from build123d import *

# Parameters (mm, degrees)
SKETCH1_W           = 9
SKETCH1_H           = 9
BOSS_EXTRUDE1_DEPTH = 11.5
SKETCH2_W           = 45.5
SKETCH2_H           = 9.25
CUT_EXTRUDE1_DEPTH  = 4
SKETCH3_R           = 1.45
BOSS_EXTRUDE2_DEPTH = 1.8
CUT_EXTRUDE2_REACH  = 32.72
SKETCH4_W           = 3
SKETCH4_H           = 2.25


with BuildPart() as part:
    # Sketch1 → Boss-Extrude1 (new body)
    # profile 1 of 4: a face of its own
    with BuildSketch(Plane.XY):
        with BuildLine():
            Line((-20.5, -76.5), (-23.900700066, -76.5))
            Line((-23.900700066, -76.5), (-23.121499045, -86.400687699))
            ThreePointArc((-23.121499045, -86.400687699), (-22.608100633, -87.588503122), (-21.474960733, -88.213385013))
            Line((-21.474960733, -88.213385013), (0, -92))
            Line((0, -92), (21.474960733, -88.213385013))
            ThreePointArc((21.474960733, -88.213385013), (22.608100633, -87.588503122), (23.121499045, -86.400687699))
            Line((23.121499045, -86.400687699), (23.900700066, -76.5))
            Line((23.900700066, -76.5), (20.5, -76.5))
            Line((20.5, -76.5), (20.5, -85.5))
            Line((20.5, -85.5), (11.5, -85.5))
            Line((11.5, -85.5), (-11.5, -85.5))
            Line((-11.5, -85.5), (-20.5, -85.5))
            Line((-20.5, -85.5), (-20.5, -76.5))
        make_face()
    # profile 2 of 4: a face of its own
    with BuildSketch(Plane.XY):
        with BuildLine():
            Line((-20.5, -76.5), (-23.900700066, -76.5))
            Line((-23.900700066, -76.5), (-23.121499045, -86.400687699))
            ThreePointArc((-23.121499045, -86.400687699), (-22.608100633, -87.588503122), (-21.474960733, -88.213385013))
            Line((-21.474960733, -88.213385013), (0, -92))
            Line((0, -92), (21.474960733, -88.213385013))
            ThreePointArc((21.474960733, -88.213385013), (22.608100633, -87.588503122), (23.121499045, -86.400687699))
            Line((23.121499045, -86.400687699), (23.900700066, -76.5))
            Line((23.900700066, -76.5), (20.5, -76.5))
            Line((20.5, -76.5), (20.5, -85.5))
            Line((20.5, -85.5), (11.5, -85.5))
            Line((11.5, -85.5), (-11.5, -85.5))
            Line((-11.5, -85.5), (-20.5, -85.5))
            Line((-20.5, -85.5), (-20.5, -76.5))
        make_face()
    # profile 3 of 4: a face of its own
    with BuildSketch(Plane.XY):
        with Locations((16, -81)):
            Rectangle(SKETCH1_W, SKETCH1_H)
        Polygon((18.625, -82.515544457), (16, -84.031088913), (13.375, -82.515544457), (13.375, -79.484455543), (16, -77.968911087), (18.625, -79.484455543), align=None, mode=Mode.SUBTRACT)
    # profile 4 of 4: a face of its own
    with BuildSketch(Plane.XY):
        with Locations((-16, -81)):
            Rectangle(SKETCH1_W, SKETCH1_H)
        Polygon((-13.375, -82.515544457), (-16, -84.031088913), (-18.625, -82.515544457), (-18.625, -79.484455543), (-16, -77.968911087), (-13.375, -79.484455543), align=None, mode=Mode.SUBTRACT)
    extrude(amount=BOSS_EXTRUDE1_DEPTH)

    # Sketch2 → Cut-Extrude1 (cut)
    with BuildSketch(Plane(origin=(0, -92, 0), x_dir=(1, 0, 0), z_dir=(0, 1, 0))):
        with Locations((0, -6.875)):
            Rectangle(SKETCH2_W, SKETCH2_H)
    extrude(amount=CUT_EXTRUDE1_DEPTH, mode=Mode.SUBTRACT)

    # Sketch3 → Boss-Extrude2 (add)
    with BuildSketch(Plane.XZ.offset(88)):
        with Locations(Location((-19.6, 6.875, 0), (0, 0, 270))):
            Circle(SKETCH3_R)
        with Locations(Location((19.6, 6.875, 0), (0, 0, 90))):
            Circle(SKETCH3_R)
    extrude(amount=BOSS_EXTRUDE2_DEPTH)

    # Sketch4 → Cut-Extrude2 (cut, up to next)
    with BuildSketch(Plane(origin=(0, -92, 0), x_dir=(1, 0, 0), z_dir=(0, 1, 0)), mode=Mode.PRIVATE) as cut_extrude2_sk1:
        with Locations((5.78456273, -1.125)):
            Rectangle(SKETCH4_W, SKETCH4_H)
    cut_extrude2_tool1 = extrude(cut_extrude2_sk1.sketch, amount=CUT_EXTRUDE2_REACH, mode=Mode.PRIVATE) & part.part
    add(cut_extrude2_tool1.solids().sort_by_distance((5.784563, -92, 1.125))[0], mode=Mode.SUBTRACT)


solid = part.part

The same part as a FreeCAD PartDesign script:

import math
import FreeCAD as App
import Part
import Sketcher
from FreeCAD import Vector
Q = App.Units.Quantity


def add_polygon(sketch, points):
    """Adds a closed chain of lines whose ends are joined by coincident constraints."""
    first, n = sketch.GeometryCount, len(points)
    for a, b in zip(points, points[1:] + points[:1]):
        sketch.addGeometry(Part.LineSegment(App.Vector(*a, 0), App.Vector(*b, 0)), False)
    for i in range(n):
        sketch.addConstraint(Sketcher.Constraint("Coincident", first + i, 2, first + (i + 1) % n, 1))

doc = App.newDocument("Part")
body = doc.addObject("PartDesign::Body", "Body")

sketch1 = body.newObject("Sketcher::SketchObject", "Sketch")
sketch1.AttachmentSupport = (doc.getObject("XY_Plane"), [""])
sketch1.MapMode = "FlatFace"
sketch1.addGeometry(Part.LineSegment(Vector(-23.9, -76.5, 0), Vector(-23.1, -86.4, 0)), False)
sketch1.addGeometry(Part.ArcOfCircle(Part.Circle(Vector(-21.1, -86.2, 0), Vector(0, 0, 1), 2), math.radians(-176), math.radians(-100)), False)
sketch1.addGeometry(Part.LineSegment(Vector(-21.5, -88.2, 0), Vector(0, -92, 0)), False)
sketch1.addGeometry(Part.LineSegment(Vector(0, -92, 0), Vector(21.5, -88.2, 0)), False)
sketch1.addGeometry(Part.ArcOfCircle(Part.Circle(Vector(21.1, -86.2, 0), Vector(0, 0, 1), 2), math.radians(-80), math.radians(-4)), False)
sketch1.addGeometry(Part.LineSegment(Vector(23.1, -86.4, 0), Vector(23.9, -76.5, 0)), False)
sketch1.addGeometry(Part.LineSegment(Vector(23.9, -76.5, 0), Vector(11.5, -76.5, 0)), False)
sketch1.addGeometry(Part.LineSegment(Vector(11.5, -76.5, 0), Vector(11.5, -85.5, 0)), False)
sketch1.addGeometry(Part.LineSegment(Vector(11.5, -85.5, 0), Vector(-11.5, -85.5, 0)), False)
sketch1.addGeometry(Part.LineSegment(Vector(-11.5, -85.5, 0), Vector(-11.5, -76.5, 0)), False)
sketch1.addGeometry(Part.LineSegment(Vector(-11.5, -76.5, 0), Vector(-23.9, -76.5, 0)), False)
add_polygon(sketch1, [(16, -84), (13.4, -82.5), (13.4, -79.5), (16, -78), (18.6, -79.5), (18.6, -82.5)])
add_polygon(sketch1, [(-16, -84), (-18.6, -82.5), (-18.6, -79.5), (-16, -78), (-13.4, -79.5), (-13.4, -82.5)])
sketch1.addConstraint([
    Sketcher.Constraint("Tangent", 0, 2, 1, 1),
    Sketcher.Constraint("Tangent", 1, 2, 2, 1),
    Sketcher.Constraint("Coincident", 2, 2, 3, 1),
    Sketcher.Constraint("Tangent", 3, 2, 4, 1),
    Sketcher.Constraint("Tangent", 4, 2, 5, 1),
    Sketcher.Constraint("Coincident", 5, 2, 6, 1),
    Sketcher.Constraint("Coincident", 6, 2, 7, 1),
    Sketcher.Constraint("Coincident", 7, 2, 8, 1),
    Sketcher.Constraint("Coincident", 8, 2, 9, 1),
    Sketcher.Constraint("Coincident", 9, 2, 10, 1),
    Sketcher.Constraint("Coincident", 10, 2, 0, 1),
    Sketcher.Constraint("Horizontal", 6),
    Sketcher.Constraint("Vertical", 7),
    Sketcher.Constraint("Horizontal", 8),
    Sketcher.Constraint("Vertical", 9),
    Sketcher.Constraint("Horizontal", 10),
    Sketcher.Constraint("Vertical", 12),
    Sketcher.Constraint("Vertical", 15),
    Sketcher.Constraint("Vertical", 18),
    Sketcher.Constraint("Vertical", 21),
    Sketcher.Constraint("Equal", 1, 4),
    Sketcher.Constraint("Symmetric", 1, 3, 4, 3, -2),
    Sketcher.Constraint("Symmetric", 6, 2, 9, 2, -2),
    Sketcher.Constraint("Symmetric", 15, 2, 17, 2, -2),
    Sketcher.Constraint("Symmetric", 13, 2, 19, 2, -2),
    Sketcher.Constraint("Symmetric", 12, 2, 20, 2, -2),
    Sketcher.Constraint("Symmetric", 16, 2, 22, 2, -2),
    Sketcher.Constraint("PointOnObject", 2, 2, -2),
    Sketcher.Constraint("Parallel", 11, 14),
    Sketcher.Constraint("Parallel", 13, 16),
    Sketcher.Constraint("Parallel", 14, 17),
    Sketcher.Constraint("Parallel", 16, 19),
    Sketcher.Constraint("Parallel", 19, 22),
    Sketcher.Constraint("Horizontal", 0, 2, 4, 2),
    Sketcher.Constraint("Horizontal", 12, 2, 14, 2),
    Sketcher.Constraint("Horizontal", 11, 2, 15, 2),
    Sketcher.Constraint("Radius", 1, 2.0),
    Sketcher.Constraint("DistanceX", 8, 2, 8, 1, 23.0),
    Sketcher.Constraint("DistanceY", 7, 2, 7, 1, 9.0),
    Sketcher.Constraint("Angle", 2, Q("-10 deg")),
    Sketcher.Constraint("Angle", 11, Q("150 deg")),
    Sketcher.Constraint("DistanceY", 2, 2, -1, 1, 92.0),
    Sketcher.Constraint("DistanceX", -1, 1, 13, 2, 16.0),
    Sketcher.Constraint("Angle", 0, Q("-85.5 deg")),
    Sketcher.Constraint("DistanceY", 5, 2, -1, 1, 76.5),
    Sketcher.Constraint("DistanceX", 12, 2, 14, 2, 5.25),
    Sketcher.Constraint("DistanceX", 6, 2, 6, 1, 12.4007),
    Sketcher.Constraint("DistanceY", 12, 1, 12, 2, 3.031089),
    Sketcher.Constraint("DistanceY", 13, 2, -1, 1, 77.968911),
])
pad1 = body.newObject("PartDesign::Pad", "Pad")
pad1.Profile = sketch1
pad1.Length = 11.5

sketch2 = body.newObject("Sketcher::SketchObject", "Sketch001")
sketch2.AttachmentSupport = (doc.getObject("XZ_Plane"), [""])
sketch2.MapMode = "FlatFace"
sketch2.AttachmentOffset = App.Placement(Vector(0, 0, 92), App.Rotation())
add_polygon(sketch2, [(-23, 2), (-23, 12), (23, 12), (23, 2)])
sketch2.addConstraint([
    Sketcher.Constraint("Vertical", 0),
    Sketcher.Constraint("Horizontal", 1),
    Sketcher.Constraint("Vertical", 2),
    Sketcher.Constraint("Horizontal", 3),
    Sketcher.Constraint("DistanceX", 1, 1, 1, 2, 45.5),
    Sketcher.Constraint("DistanceY", 0, 1, 0, 2, 9.25),
    Sketcher.Constraint("DistanceY", -1, 1, 0, 2, 11.5),
    Sketcher.Constraint("DistanceX", 0, 2, -1, 1, 22.75),
])
pocket1 = body.newObject("PartDesign::Pocket", "Pocket")
pocket1.Profile = sketch2
pocket1.Length = 4

sketch3 = body.newObject("Sketcher::SketchObject", "Sketch002")
sketch3.AttachmentSupport = (doc.getObject("XZ_Plane"), [""])
sketch3.MapMode = "FlatFace"
sketch3.AttachmentOffset = App.Placement(Vector(0, 0, 88), App.Rotation())
sketch3.addGeometry([
    Part.Circle(Vector(-19.6, 6.9, 0), Vector(0, 0, 1), 1.4),
    Part.Circle(Vector(19.6, 6.9, 0), Vector(0, 0, 1), 1.4),
], False)
sketch3.addConstraint([
    Sketcher.Constraint("Equal", 0, 1),
    Sketcher.Constraint("Symmetric", 0, 3, 1, 3, -2),
    Sketcher.Constraint("Diameter", 0, 2.9),
    Sketcher.Constraint("DistanceX", 0, 3, -1, 1, 19.6),
    Sketcher.Constraint("DistanceY", -1, 1, 0, 3, 6.875),
])
pad2 = body.newObject("PartDesign::Pad", "Pad001")
pad2.Profile = sketch3
pad2.Length = 1.8

sketch4 = body.newObject("Sketcher::SketchObject", "Sketch003")
sketch4.AttachmentSupport = (doc.getObject("XZ_Plane"), [""])
sketch4.MapMode = "FlatFace"
sketch4.AttachmentOffset = App.Placement(Vector(0, 0, 92), App.Rotation())
add_polygon(sketch4, [(4.3, 0), (4.3, 2.2), (7.3, 2.2), (7.3, 0)])
sketch4.addConstraint([
    Sketcher.Constraint("Vertical", 0),
    Sketcher.Constraint("Horizontal", 1),
    Sketcher.Constraint("Vertical", 2),
    Sketcher.Constraint("Horizontal", 3),
    Sketcher.Constraint("PointOnObject", 2, 2, -1),
    Sketcher.Constraint("DistanceX", 1, 1, 1, 2, 3.0),
    Sketcher.Constraint("DistanceY", 0, 1, 0, 2, 2.25),
    Sketcher.Constraint("DistanceX", -1, 1, 0, 2, 4.284563),
])
pocket2 = body.newObject("PartDesign::Pocket", "Pocket001")
pocket2.Profile = sketch4
pocket2.Length = 6.5

doc.recompute()
